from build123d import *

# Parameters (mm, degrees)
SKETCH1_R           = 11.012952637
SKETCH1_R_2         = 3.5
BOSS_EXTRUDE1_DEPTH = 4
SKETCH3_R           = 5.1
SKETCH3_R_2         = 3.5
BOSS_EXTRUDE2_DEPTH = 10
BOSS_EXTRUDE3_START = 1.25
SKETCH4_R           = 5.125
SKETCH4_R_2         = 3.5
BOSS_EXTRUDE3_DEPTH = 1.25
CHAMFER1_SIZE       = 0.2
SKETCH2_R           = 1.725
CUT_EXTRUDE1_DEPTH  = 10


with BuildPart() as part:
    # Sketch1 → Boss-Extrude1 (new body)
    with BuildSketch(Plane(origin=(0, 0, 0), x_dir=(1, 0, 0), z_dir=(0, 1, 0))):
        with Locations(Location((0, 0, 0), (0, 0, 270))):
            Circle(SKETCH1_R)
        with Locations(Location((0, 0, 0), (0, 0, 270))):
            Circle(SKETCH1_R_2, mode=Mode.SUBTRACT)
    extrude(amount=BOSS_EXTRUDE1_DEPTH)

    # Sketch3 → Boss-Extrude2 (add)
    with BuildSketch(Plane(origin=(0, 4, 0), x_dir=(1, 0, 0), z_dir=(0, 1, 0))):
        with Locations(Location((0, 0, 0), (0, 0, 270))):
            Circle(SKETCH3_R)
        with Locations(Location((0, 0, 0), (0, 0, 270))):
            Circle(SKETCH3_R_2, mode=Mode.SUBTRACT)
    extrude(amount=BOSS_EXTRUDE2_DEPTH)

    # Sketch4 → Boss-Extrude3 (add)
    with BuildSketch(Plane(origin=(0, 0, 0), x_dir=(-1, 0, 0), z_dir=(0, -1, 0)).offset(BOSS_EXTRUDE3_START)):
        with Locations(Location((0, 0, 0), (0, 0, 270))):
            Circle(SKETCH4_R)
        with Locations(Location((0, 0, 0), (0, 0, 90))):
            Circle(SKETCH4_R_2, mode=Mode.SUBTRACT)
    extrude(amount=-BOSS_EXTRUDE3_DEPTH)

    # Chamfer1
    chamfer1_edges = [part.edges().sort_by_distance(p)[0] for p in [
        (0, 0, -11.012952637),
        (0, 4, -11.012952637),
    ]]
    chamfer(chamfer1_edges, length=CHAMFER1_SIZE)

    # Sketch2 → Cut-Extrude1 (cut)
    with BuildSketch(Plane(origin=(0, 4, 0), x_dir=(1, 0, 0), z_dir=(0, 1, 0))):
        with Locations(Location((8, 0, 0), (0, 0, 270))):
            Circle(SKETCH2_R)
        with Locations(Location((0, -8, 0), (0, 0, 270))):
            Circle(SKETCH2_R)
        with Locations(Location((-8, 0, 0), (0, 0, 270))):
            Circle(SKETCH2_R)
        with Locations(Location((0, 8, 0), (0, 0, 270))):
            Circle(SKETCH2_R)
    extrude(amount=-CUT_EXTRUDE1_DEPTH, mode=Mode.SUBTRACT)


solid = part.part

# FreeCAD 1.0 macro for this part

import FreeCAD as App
import Part
import Sketcher
Q = App.Units.Quantity


def edges_at(feature, points):
    """Names of the edges that pass closest to the given points."""
    edges = feature.Shape.Edges
    near = lambda p: min(range(len(edges)), key=lambda i: edges[i].distToShape(Part.Vertex(*p))[0])
    return sorted({f"Edge{near(p) + 1}" for p in points})

doc = App.newDocument("Part")
params = doc.addObject("Spreadsheet::Sheet", "Params")
for row, (alias, value) in enumerate([
    ("sketch1_diameter", "7 mm"),
    ("pad1_length", "4 mm"),
    ("sketch2_diameter", "7 mm"),
    ("sketch2_diameter2", "10.2 mm"),
    ("pad2_length", "10 mm"),
    ("sketch3_diameter", "7 mm"),
    ("sketch3_diameter2", "10.25 mm"),
    ("pad3_length", "1.25 mm"),
    ("chamfer_size", "0.2 mm"),
    ("sketch4_diameter", "3.45 mm"),
    ("pocket1_length", "10 mm"),
], start=1):
    params.set(f"A{row}", alias)
    params.set(f"B{row}", "=" + value)
    params.setAlias(f"B{row}", alias)

body = doc.addObject("PartDesign::Body", "Body")

# Sketch on XZ plane
sketch1 = body.newObject("Sketcher::SketchObject", "Sketch")
sketch1.AttachmentSupport = (doc.getObject("XZ_Plane"), [""])
sketch1.MapMode = "FlatFace"
sketch1.addGeometry([
    Part.Circle(App.Vector(0, 0, 0), App.Vector(0, 0, 1), 11),
    Part.Circle(App.Vector(0, 0, 0), App.Vector(0, 0, 1), 3.5),
], False)
sketch1.addConstraint([
    Sketcher.Constraint("Coincident", 0, 3, -1, 1),
    Sketcher.Constraint("Coincident", 1, 3, -1, 1),
    Sketcher.Constraint("Diameter", 1, Q("7 mm")),
    Sketcher.Constraint("Diameter", 0, Q("22.025905 mm")),
])
sketch1.setExpression("Constraints[2]", "Params.sketch1_diameter")
pad1 = body.newObject("PartDesign::Pad", "Pad")
pad1.Profile = sketch1
pad1.setExpression("Length", "Params.pad1_length")
pad1.Reversed = True

# Sketch on XZ plane
sketch2 = body.newObject("Sketcher::SketchObject", "Sketch001")
sketch2.AttachmentSupport = (doc.getObject("XZ_Plane"), [""])
sketch2.MapMode = "FlatFace"
sketch2.AttachmentOffset = App.Placement(App.Vector(0, 0, -4), App.Rotation())
sketch2.addGeometry([
    Part.Circle(App.Vector(0, 0, 0), App.Vector(0, 0, 1), 5.1),
    Part.Circle(App.Vector(0, 0, 0), App.Vector(0, 0, 1), 3.5),
], False)
sketch2.addConstraint([
    Sketcher.Constraint("Coincident", 0, 3, -1, 1),
    Sketcher.Constraint("Coincident", 1, 3, -1, 1),
    Sketcher.Constraint("Diameter", 1, Q("7 mm")),
    Sketcher.Constraint("Diameter", 0, Q("10.2 mm")),
])
sketch2.setExpression("Constraints[2]", "Params.sketch2_diameter")
sketch2.setExpression("Constraints[3]", "Params.sketch2_diameter2")
pad2 = body.newObject("PartDesign::Pad", "Pad001")
pad2.Profile = sketch2
pad2.setExpression("Length", "Params.pad2_length")
pad2.Reversed = True

# Sketch on XZ plane
sketch3 = body.newObject("Sketcher::SketchObject", "Sketch002")
sketch3.AttachmentSupport = (doc.getObject("XZ_Plane"), [""])
sketch3.MapMode = "FlatFace"
sketch3.AttachmentOffset = App.Placement(App.Vector(0, 0, 1.25), App.Rotation())
sketch3.addGeometry([
    Part.Circle(App.Vector(0, 0, 0), App.Vector(0, 0, 1), 5.1),
    Part.Circle(App.Vector(0, 0, 0), App.Vector(0, 0, 1), 3.5),
], False)
sketch3.addConstraint([
    Sketcher.Constraint("Coincident", 0, 3, -1, 1),
    Sketcher.Constraint("Coincident", 1, 3, -1, 1),
    Sketcher.Constraint("Diameter", 1, Q("7 mm")),
    Sketcher.Constraint("Diameter", 0, Q("10.25 mm")),
])
sketch3.setExpression("Constraints[2]", "Params.sketch3_diameter")
sketch3.setExpression("Constraints[3]", "Params.sketch3_diameter2")
pad3 = body.newObject("PartDesign::Pad", "Pad002")
pad3.Profile = sketch3
pad3.setExpression("Length", "Params.pad3_length")
pad3.Reversed = True
doc.recompute()

chamfer = body.newObject("PartDesign::Chamfer", "Chamfer")
chamfer.Base = (pad3, edges_at(pad3, [(0, 0, -11.013), (0, 4, -11.013)]))
chamfer.setExpression("Size", "Params.chamfer_size")

# Sketch on XZ plane
sketch4 = body.newObject("Sketcher::SketchObject", "Sketch003")
sketch4.AttachmentSupport = (doc.getObject("XZ_Plane"), [""])
sketch4.MapMode = "FlatFace"
sketch4.AttachmentOffset = App.Placement(App.Vector(0, 0, -4), App.Rotation())
sketch4.addGeometry([
    Part.Circle(App.Vector(8, 0, 0), App.Vector(0, 0, 1), 1.7),
    Part.Circle(App.Vector(0, 8, 0), App.Vector(0, 0, 1), 1.7),
    Part.Circle(App.Vector(-8, 0, 0), App.Vector(0, 0, 1), 1.7),
    Part.Circle(App.Vector(0, -8, 0), App.Vector(0, 0, 1), 1.7),
], False)
sketch4.addConstraint([
    Sketcher.Constraint("Equal", 0, 1),
    Sketcher.Constraint("Equal", 1, 2),
    Sketcher.Constraint("Equal", 2, 3),
    Sketcher.Constraint("Symmetric", 0, 3, 2, 3, -1, 1),
    Sketcher.Constraint("Symmetric", 1, 3, 3, 3, -1, 1),
    Sketcher.Constraint("PointOnObject", 0, 3, -1),
    Sketcher.Constraint("PointOnObject", 1, 3, -2),
    Sketcher.Constraint("Diameter", 0, Q("3.45 mm")),
    Sketcher.Constraint("DistanceX", -1, 1, 0, 3, Q("8 mm")),
    Sketcher.Constraint("DistanceY", -1, 1, 1, 3, Q("8 mm")),
])
sketch4.setExpression("Constraints[7]", "Params.sketch4_diameter")
pocket1 = body.newObject("PartDesign::Pocket", "Pocket")
pocket1.Profile = sketch4
pocket1.setExpression("Length", "Params.pocket1_length")
pocket1.Reversed = True

doc.recompute()
